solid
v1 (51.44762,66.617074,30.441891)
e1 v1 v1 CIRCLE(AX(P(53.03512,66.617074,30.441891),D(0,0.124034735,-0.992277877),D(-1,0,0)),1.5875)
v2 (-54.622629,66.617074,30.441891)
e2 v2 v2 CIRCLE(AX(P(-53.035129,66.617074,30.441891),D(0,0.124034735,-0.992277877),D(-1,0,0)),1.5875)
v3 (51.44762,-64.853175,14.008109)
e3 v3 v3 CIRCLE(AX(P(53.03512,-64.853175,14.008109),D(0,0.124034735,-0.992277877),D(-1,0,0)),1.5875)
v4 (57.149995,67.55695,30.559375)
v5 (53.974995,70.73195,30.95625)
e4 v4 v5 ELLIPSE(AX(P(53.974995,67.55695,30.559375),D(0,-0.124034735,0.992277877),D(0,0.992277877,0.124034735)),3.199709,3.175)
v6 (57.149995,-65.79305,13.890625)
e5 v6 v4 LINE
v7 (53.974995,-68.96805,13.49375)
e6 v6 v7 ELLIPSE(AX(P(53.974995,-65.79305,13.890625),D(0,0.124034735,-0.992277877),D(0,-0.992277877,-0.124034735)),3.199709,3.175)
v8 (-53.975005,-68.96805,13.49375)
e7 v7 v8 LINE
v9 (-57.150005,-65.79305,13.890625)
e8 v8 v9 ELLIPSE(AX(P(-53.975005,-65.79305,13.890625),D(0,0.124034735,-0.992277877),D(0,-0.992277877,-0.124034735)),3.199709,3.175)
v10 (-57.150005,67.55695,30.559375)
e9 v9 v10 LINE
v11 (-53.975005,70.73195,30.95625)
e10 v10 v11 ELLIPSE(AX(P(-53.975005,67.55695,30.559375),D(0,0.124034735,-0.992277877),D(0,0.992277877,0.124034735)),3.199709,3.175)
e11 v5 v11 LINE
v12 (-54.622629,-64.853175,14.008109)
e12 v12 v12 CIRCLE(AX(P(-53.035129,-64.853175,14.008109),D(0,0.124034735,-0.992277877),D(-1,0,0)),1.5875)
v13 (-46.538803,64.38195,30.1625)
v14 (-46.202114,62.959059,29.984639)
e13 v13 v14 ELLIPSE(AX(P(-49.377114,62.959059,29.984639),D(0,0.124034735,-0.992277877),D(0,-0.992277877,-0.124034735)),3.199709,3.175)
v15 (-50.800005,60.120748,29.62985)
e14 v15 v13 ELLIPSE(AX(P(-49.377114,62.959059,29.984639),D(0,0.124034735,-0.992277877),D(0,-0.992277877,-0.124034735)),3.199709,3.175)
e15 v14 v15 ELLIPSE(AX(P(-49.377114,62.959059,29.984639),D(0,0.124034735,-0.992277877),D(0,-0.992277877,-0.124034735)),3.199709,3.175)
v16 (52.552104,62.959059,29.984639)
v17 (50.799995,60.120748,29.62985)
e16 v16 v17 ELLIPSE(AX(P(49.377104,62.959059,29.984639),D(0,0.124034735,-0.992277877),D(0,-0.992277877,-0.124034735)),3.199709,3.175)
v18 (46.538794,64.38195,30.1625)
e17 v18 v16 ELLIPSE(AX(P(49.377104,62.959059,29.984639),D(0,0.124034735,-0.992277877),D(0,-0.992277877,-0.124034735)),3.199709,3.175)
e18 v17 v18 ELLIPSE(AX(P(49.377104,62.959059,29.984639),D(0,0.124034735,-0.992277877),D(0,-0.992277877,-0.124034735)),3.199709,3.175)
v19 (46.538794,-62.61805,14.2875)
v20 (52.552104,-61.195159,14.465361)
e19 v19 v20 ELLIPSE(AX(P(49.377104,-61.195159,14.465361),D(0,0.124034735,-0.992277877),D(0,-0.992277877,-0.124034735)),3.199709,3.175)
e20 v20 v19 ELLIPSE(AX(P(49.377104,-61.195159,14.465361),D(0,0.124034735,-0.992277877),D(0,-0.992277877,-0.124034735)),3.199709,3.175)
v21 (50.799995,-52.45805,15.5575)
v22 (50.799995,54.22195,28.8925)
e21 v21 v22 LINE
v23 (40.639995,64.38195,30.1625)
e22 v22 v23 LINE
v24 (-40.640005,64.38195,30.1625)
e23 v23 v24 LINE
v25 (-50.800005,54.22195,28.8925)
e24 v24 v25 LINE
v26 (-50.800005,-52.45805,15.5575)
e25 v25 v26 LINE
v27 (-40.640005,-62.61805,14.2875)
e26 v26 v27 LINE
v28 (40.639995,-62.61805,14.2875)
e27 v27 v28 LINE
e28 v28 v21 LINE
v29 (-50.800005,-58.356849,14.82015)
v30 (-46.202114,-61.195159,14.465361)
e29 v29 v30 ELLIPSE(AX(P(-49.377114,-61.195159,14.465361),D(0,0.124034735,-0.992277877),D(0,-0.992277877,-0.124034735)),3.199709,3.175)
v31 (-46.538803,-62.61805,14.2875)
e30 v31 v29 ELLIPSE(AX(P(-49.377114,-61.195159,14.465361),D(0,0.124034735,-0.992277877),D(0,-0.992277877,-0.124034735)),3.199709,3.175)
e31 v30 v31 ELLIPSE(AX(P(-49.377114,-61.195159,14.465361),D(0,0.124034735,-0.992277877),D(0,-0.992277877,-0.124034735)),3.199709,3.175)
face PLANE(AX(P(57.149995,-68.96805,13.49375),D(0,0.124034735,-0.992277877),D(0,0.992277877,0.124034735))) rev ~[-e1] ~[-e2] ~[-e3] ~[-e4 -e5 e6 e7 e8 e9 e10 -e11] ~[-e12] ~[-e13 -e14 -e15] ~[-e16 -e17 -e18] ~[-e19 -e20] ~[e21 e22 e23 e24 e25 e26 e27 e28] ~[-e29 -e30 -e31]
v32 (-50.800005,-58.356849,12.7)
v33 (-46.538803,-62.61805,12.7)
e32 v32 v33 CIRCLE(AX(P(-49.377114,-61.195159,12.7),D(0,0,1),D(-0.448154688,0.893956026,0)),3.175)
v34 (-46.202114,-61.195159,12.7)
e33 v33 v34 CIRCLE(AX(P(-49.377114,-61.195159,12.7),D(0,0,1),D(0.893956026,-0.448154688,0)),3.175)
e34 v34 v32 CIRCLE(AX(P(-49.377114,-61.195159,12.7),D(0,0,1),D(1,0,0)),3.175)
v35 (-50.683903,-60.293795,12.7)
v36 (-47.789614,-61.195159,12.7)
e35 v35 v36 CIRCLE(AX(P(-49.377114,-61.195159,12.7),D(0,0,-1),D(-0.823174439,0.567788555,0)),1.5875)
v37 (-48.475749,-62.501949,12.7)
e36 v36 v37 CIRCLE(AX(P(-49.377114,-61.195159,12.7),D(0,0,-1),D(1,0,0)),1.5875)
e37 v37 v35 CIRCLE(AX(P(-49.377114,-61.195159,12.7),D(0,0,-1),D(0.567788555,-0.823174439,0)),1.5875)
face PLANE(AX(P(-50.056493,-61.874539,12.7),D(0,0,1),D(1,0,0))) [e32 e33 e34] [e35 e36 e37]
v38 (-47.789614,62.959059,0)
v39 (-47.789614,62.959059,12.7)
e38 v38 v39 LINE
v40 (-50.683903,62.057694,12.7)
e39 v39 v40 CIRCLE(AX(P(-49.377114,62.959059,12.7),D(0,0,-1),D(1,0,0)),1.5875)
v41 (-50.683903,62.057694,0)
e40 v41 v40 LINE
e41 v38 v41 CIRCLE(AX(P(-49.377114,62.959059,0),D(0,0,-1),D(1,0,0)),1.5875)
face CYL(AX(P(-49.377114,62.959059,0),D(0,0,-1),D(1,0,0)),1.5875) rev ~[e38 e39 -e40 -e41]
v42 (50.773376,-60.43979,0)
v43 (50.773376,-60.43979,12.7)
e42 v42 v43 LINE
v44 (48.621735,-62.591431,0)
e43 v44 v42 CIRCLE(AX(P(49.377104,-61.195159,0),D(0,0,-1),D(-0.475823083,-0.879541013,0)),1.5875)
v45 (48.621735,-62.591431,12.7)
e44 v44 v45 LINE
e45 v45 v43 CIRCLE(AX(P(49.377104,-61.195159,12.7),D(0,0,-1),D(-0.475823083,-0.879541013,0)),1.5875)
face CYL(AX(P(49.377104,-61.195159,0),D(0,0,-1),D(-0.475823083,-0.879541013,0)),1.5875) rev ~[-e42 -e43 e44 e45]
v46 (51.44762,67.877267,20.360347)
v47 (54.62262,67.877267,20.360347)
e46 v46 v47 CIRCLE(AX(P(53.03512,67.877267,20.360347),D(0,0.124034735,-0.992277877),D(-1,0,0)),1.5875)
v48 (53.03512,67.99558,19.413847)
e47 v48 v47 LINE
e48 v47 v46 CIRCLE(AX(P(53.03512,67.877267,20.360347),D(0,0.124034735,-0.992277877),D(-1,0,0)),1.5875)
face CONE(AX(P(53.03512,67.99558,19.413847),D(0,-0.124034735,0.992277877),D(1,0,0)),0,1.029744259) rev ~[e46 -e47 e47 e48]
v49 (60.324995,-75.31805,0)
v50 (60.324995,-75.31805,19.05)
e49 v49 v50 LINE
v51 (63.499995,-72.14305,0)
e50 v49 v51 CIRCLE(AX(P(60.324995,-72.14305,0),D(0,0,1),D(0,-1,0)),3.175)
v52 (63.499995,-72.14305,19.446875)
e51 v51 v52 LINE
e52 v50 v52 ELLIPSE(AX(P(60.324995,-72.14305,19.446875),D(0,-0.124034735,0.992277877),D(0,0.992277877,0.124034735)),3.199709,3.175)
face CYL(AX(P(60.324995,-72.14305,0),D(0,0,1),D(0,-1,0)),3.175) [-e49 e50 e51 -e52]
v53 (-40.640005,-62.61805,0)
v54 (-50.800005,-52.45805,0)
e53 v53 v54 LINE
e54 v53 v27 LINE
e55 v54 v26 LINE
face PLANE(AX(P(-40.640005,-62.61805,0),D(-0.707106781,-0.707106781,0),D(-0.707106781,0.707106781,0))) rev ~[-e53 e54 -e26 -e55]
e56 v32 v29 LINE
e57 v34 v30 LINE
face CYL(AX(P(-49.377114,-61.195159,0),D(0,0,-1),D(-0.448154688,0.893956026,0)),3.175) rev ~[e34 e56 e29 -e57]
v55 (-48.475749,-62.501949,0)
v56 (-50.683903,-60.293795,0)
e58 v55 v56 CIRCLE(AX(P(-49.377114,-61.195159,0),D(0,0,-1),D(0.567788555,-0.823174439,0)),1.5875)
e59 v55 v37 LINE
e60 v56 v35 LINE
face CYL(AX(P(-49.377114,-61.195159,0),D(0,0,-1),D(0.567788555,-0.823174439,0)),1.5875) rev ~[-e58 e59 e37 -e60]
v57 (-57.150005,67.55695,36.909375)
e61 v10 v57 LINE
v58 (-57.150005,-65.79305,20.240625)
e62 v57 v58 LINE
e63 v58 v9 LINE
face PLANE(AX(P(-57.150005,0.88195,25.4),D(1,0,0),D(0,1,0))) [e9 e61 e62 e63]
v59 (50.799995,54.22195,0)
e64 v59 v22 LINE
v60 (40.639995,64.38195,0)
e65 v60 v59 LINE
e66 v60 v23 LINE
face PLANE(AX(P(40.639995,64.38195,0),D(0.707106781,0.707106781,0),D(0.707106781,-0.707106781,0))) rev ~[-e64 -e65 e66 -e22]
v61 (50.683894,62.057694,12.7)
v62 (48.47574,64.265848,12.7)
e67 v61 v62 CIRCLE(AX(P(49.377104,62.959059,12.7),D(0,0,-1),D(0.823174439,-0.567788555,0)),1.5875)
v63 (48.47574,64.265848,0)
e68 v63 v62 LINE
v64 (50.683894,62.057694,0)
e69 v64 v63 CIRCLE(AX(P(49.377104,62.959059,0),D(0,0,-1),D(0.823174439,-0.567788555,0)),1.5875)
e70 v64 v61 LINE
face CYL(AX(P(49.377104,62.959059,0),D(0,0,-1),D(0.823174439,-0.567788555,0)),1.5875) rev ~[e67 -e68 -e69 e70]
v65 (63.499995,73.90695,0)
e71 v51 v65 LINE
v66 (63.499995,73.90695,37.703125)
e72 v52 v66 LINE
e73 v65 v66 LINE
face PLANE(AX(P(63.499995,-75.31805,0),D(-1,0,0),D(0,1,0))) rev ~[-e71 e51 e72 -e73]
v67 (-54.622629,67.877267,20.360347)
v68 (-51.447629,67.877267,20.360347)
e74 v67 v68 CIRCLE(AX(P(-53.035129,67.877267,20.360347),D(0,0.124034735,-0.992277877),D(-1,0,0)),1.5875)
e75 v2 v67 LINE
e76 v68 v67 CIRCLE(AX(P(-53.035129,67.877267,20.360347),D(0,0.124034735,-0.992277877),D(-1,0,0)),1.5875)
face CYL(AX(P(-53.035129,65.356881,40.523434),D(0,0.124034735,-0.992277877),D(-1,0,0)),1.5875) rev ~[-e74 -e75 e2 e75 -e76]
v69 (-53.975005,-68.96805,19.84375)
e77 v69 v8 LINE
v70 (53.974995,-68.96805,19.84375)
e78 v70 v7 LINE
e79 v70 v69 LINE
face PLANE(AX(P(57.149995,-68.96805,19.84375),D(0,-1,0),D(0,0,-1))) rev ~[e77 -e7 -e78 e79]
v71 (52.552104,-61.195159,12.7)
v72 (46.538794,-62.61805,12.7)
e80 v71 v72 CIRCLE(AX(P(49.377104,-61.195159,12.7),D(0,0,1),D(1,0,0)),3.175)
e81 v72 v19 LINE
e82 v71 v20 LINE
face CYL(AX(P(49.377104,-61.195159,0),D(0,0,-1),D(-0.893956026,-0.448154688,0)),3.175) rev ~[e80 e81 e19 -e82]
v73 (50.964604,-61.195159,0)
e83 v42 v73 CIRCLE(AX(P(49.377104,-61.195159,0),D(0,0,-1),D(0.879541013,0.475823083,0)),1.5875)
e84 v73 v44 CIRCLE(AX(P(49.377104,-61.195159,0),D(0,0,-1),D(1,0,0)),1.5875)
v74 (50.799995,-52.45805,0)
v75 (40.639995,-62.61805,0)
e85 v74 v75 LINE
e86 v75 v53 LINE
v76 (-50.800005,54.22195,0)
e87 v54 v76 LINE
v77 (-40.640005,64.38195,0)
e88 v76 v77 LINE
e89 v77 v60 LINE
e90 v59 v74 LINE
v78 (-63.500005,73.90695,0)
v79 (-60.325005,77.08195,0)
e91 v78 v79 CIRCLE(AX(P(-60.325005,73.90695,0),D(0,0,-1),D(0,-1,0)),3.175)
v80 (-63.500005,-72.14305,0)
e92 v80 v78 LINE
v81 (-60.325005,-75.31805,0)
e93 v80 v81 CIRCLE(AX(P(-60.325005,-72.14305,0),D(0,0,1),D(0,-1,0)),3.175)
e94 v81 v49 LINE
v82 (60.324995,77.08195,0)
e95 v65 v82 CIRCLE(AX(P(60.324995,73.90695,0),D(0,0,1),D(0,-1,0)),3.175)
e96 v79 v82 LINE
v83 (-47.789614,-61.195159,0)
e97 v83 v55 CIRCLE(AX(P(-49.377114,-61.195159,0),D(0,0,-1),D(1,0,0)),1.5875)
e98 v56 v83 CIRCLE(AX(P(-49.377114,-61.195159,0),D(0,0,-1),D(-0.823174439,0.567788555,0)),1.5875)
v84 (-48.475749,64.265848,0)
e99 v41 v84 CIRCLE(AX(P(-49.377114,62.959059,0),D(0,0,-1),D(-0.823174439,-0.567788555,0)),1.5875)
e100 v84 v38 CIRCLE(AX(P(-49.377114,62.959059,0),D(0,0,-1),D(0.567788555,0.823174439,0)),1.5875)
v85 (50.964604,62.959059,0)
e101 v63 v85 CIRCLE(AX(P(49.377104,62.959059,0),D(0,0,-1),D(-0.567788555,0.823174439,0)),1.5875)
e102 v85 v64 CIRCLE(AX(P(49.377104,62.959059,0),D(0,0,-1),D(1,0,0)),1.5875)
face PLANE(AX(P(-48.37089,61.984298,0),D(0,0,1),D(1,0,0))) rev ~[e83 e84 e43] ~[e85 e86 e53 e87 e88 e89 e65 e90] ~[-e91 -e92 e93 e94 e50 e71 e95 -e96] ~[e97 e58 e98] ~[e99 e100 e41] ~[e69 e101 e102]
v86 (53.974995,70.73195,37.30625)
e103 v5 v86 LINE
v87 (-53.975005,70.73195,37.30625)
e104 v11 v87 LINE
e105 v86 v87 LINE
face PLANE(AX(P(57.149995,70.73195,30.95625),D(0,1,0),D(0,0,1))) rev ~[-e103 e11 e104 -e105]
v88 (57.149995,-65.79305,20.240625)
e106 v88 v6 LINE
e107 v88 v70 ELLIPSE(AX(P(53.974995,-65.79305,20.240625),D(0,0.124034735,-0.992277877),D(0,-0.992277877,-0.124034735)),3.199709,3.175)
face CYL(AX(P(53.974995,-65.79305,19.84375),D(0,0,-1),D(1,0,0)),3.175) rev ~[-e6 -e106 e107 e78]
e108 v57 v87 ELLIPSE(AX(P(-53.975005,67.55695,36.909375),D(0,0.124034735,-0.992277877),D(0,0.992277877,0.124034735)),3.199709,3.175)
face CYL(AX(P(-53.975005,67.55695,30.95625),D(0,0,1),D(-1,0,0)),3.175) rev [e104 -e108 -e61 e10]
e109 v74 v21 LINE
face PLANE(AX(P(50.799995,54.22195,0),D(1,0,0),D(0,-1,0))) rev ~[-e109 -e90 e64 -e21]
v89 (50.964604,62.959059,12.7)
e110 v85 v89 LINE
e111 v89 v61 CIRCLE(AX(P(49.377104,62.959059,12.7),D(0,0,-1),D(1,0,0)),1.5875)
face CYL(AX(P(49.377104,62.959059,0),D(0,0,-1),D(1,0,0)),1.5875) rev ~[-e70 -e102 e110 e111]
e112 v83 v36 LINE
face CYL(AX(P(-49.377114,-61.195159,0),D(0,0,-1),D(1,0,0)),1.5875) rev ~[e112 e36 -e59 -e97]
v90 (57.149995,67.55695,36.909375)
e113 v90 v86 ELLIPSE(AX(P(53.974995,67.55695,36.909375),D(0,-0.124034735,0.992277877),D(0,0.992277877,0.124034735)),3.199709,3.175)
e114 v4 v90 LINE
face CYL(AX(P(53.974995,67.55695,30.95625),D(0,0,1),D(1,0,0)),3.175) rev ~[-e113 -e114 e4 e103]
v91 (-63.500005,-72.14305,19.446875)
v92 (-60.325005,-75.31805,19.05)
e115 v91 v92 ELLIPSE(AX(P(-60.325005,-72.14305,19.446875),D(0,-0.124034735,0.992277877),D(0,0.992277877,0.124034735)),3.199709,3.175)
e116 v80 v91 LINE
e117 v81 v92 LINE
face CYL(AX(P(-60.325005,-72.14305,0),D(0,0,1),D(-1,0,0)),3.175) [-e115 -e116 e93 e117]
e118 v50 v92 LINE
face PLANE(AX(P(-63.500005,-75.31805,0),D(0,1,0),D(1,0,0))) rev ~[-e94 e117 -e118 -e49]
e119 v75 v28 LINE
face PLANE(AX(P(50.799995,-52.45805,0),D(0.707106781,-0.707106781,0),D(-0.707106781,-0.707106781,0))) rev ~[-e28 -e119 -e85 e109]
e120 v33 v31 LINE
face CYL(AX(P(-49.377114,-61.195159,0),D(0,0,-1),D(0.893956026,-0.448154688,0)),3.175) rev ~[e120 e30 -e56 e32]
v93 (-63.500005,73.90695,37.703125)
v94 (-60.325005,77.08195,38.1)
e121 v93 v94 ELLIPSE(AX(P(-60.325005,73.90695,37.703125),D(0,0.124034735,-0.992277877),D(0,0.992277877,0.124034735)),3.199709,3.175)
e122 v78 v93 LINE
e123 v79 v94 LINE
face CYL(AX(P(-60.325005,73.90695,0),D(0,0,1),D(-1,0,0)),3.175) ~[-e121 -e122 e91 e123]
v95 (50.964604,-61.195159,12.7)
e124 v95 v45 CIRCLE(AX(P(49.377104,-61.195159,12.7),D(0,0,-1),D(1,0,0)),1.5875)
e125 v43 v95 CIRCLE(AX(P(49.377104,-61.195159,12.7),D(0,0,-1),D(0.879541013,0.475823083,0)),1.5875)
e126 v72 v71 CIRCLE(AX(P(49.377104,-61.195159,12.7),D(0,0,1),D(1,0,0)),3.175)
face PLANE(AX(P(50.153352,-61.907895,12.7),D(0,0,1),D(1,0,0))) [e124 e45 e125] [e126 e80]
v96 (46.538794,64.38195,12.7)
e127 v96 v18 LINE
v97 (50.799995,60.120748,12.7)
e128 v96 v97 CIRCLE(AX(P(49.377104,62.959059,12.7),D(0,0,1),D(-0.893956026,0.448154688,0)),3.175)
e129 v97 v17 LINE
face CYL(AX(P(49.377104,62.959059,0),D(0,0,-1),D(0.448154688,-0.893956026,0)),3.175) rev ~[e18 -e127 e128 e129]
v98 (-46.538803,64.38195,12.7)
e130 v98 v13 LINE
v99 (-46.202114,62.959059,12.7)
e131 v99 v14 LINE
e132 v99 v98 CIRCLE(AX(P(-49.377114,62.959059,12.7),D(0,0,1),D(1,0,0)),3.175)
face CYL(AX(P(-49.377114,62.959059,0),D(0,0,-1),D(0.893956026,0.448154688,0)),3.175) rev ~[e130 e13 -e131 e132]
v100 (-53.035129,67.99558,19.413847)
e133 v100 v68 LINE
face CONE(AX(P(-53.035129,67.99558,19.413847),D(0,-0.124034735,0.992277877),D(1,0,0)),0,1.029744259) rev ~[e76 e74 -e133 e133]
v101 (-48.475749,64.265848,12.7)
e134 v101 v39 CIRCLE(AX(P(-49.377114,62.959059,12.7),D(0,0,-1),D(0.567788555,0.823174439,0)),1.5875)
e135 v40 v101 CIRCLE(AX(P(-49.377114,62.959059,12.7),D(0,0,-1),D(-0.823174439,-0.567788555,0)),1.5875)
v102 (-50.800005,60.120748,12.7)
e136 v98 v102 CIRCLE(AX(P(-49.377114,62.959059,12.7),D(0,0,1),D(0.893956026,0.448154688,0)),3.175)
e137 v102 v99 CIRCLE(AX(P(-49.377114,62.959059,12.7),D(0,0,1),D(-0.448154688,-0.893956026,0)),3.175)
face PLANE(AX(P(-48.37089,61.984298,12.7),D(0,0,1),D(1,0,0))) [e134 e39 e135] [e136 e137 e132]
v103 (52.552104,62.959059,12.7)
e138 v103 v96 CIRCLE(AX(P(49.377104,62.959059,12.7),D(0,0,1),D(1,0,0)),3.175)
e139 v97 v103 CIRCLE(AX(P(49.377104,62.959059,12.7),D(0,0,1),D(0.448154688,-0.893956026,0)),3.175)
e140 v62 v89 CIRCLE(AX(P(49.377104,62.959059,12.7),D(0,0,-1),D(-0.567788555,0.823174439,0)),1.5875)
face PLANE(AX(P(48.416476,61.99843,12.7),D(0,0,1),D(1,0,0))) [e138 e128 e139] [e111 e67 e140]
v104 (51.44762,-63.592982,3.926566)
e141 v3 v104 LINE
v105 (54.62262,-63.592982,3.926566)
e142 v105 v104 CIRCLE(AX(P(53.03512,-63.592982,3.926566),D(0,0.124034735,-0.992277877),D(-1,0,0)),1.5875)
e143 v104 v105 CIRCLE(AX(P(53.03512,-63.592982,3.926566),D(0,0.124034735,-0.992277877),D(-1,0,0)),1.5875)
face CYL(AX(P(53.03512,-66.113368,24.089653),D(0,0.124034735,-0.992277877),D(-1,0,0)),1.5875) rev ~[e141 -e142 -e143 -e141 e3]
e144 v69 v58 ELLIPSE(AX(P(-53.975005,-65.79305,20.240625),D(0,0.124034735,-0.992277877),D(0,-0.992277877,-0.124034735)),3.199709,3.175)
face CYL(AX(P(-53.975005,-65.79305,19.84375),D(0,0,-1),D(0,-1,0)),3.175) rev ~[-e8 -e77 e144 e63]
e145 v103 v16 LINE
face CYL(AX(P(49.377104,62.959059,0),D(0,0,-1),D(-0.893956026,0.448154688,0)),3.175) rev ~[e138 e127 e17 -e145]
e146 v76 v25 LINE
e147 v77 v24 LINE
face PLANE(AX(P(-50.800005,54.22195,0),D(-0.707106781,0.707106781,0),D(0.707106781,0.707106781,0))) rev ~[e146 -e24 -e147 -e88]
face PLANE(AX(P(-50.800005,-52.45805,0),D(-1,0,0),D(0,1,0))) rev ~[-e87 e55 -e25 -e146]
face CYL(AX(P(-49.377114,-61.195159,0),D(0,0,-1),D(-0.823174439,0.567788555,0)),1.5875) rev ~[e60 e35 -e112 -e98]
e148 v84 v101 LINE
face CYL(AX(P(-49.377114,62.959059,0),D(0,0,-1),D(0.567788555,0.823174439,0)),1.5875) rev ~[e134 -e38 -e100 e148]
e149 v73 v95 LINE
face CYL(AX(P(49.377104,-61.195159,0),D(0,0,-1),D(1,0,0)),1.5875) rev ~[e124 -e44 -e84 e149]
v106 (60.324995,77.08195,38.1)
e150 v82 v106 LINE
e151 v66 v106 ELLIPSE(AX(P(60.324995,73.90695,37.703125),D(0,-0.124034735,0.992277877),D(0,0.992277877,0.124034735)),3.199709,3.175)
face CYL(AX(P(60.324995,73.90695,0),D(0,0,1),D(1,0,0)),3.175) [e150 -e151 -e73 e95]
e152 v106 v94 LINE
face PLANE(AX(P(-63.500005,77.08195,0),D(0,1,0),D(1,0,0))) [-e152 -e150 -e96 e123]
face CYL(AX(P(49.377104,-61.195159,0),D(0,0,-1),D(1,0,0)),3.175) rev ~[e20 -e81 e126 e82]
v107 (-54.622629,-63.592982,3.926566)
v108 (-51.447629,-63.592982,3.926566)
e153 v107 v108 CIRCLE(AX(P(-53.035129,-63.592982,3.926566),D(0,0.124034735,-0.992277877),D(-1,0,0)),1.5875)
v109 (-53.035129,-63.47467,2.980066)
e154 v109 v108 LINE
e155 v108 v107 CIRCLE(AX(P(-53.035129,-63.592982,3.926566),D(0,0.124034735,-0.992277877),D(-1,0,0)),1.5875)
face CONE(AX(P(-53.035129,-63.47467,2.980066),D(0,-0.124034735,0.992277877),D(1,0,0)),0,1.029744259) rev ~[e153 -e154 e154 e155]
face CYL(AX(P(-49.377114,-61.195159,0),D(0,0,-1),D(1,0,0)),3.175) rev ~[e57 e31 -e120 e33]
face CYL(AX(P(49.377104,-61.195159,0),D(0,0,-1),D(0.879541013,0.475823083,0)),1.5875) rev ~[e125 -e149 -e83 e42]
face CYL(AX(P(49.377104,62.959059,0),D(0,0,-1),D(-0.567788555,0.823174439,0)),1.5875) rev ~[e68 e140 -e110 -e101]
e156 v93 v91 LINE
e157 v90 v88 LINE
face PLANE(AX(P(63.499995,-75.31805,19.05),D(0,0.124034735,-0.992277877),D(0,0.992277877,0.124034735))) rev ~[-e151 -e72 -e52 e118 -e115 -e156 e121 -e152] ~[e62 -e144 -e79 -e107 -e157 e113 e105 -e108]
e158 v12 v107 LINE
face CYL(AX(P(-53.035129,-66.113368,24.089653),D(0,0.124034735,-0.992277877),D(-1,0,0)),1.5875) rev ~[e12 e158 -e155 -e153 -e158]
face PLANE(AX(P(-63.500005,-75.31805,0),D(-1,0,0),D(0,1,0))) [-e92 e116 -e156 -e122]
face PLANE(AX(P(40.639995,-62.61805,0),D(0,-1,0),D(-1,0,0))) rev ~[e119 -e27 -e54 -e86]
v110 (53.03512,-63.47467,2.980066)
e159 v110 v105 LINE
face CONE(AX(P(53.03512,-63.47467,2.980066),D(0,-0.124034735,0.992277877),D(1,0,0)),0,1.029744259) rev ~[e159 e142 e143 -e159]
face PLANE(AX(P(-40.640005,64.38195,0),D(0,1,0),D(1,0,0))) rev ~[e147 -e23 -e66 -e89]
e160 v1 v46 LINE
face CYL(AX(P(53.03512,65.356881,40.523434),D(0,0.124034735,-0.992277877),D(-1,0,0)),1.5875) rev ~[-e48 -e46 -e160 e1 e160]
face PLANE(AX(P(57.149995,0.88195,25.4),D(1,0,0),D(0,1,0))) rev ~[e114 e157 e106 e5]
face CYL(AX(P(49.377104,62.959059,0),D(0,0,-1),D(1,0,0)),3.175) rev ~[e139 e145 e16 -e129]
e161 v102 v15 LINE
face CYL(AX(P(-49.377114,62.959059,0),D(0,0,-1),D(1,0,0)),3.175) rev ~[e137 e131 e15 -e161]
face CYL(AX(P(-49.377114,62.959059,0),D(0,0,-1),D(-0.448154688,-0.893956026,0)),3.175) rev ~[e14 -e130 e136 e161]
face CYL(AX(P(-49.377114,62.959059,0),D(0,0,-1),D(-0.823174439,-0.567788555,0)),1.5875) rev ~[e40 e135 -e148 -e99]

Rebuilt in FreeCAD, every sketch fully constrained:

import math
import FreeCAD as App
import Part
import Sketcher

V = App.Vector
Q = App.Units.Quantity


def edges_at(feature, points):
    """Names of the edges that pass closest to the given points."""
    edges = feature.Shape.Edges
    near = lambda p: min(range(len(edges)), key=lambda i: edges[i].distToShape(Part.Vertex(*p))[0])
    return sorted({f"Edge{near(p) + 1}" for p in points})

doc = App.newDocument("Part")
body = doc.addObject("PartDesign::Body", "Body")

# Sketch on XY plane
sketch1 = body.newObject("Sketcher::SketchObject", "Sketch")
sketch1.AttachmentSupport = (doc.getObject("XY_Plane"), [""])
sketch1.MapMode = "FlatFace"
sketch1.addGeometry([
    Part.LineSegment(V(-63.5, 77.1, 0), V(-63.5, -75.3, 0)),  # 0
    Part.LineSegment(V(-63.5, -75.3, 0), V(63.5, -75.3, 0)),  # 1
    Part.LineSegment(V(63.5, -75.3, 0), V(63.5, 77.1, 0)),  # 2
    Part.LineSegment(V(63.5, 77.1, 0), V(-63.5, 77.1, 0)),  # 3
    Part.ArcOfCircle(Part.Circle(V(-49.4, 63, 0), V(0, 0, 1), 3.2), math.radians(27), math.radians(243)),  # 4
    Part.ArcOfCircle(Part.Circle(V(-49.4, 63, 0), V(0, 0, 1), 3.2), math.radians(0), math.radians(27)),  # 5
    Part.ArcOfCircle(Part.Circle(V(-49.4, 63, 0), V(0, 0, 1), 3.2), math.radians(-117), math.radians(0)),  # 6
    Part.LineSegment(V(-50.8, -52.5, 0), V(-50.8, 54.2, 0)),  # 7
    Part.LineSegment(V(-50.8, 54.2, 0), V(-40.6, 64.4, 0)),  # 8
    Part.LineSegment(V(-40.6, 64.4, 0), V(40.6, 64.4, 0)),  # 9
    Part.LineSegment(V(40.6, 64.4, 0), V(50.8, 54.2, 0)),  # 10
    Part.LineSegment(V(50.8, 54.2, 0), V(50.8, -52.5, 0)),  # 11
    Part.LineSegment(V(50.8, -52.5, 0), V(40.6, -62.6, 0)),  # 12
    Part.LineSegment(V(40.6, -62.6, 0), V(-40.6, -62.6, 0)),  # 13
    Part.LineSegment(V(-40.6, -62.6, 0), V(-50.8, -52.5, 0)),  # 14
    Part.ArcOfCircle(Part.Circle(V(-49.4, -61.2, 0), V(0, 0, 1), 3.2), math.radians(117), math.radians(333)),  # 15
    Part.ArcOfCircle(Part.Circle(V(-49.4, -61.2, 0), V(0, 0, 1), 3.2), math.radians(0), math.radians(117)),  # 16
    Part.ArcOfCircle(Part.Circle(V(-49.4, -61.2, 0), V(0, 0, 1), 3.2), math.radians(-27), math.radians(0)),  # 17
    Part.ArcOfCircle(Part.Circle(V(49.4, -61.2, 0), V(0, 0, 1), 3.2), math.radians(-153), math.radians(0)),  # 18
    Part.ArcOfCircle(Part.Circle(V(49.4, -61.2, 0), V(0, 0, 1), 3.2), math.radians(0), math.radians(207)),  # 19
    Part.ArcOfCircle(Part.Circle(V(49.4, 63, 0), V(0, 0, 1), 3.2), math.radians(0), math.radians(153)),  # 20
    Part.ArcOfCircle(Part.Circle(V(49.4, 63, 0), V(0, 0, 1), 3.2), math.radians(-63), math.radians(0)),  # 21
    Part.ArcOfCircle(Part.Circle(V(49.4, 63, 0), V(0, 0, 1), 3.2), math.radians(153), math.radians(297)),  # 22
], False)
sketch1.addConstraint([
    Sketcher.Constraint("Coincident", 0, 2, 1, 1),
    Sketcher.Constraint("Coincident", 1, 2, 2, 1),
    Sketcher.Constraint("Coincident", 2, 2, 3, 1),
    Sketcher.Constraint("Coincident", 3, 2, 0, 1),
    Sketcher.Constraint("Tangent", 4, 1, 5, 2),
    Sketcher.Constraint("Tangent", 5, 1, 6, 2),
    Sketcher.Constraint("Tangent", 6, 1, 4, 2),
    Sketcher.Constraint("Coincident", 7, 2, 8, 1),
    Sketcher.Constraint("Coincident", 8, 2, 9, 1),
    Sketcher.Constraint("Coincident", 9, 2, 10, 1),
    Sketcher.Constraint("Coincident", 10, 2, 11, 1),
    Sketcher.Constraint("Coincident", 11, 2, 12, 1),
    Sketcher.Constraint("Coincident", 12, 2, 13, 1),
    Sketcher.Constraint("Coincident", 13, 2, 14, 1),
    Sketcher.Constraint("Coincident", 14, 2, 7, 1),
    Sketcher.Constraint("Tangent", 15, 1, 16, 2),
    Sketcher.Constraint("Tangent", 16, 1, 17, 2),
    Sketcher.Constraint("Tangent", 17, 1, 15, 2),
    Sketcher.Constraint("Tangent", 18, 1, 19, 2),
    Sketcher.Constraint("Coincident", 19, 1, 18, 2),
    Sketcher.Constraint("Tangent", 20, 1, 21, 2),
    Sketcher.Constraint("Tangent", 21, 1, 22, 2),
    Sketcher.Constraint("Tangent", 22, 1, 20, 2),
    Sketcher.Constraint("Vertical", 0),
    Sketcher.Constraint("Horizontal", 1),
    Sketcher.Constraint("Vertical", 2),
    Sketcher.Constraint("Horizontal", 3),
    Sketcher.Constraint("Vertical", 7),
    Sketcher.Constraint("Horizontal", 9),
    Sketcher.Constraint("Vertical", 11),
    Sketcher.Constraint("Horizontal", 13),
    Sketcher.Constraint("Equal", 6, 15),
    Sketcher.Constraint("Equal", 17, 18),
    Sketcher.Constraint("Equal", 19, 20),
    Sketcher.Constraint("Symmetric", 15, 3, 18, 3, -2),
    Sketcher.Constraint("Symmetric", 4, 3, 20, 3, -2),
    Sketcher.Constraint("Symmetric", 7, 2, 10, 2, -2),
    Sketcher.Constraint("Perpendicular", 8, 10),
    Sketcher.Constraint("Perpendicular", 10, 12),
    Sketcher.Constraint("Perpendicular", 12, 14),
    Sketcher.Constraint("Horizontal", 22, 3, 5, 1),
    Sketcher.Constraint("Horizontal", 4, 1, 8, 2),
    Sketcher.Constraint("Horizontal", 11, 2, 14, 2),
    Sketcher.Constraint("Horizontal", 19, 3, 16, 1),
    Sketcher.Constraint("Horizontal", 13, 2, 17, 1),
    Sketcher.Constraint("Horizontal", 17, 1, 18, 1),
    Sketcher.Constraint("Horizontal", 16, 1, 19, 1),
    Sketcher.Constraint("Horizontal", 5, 1, 20, 1),
    Sketcher.Constraint("Horizontal", 6, 1, 21, 1),
    Sketcher.Constraint("Horizontal", 9, 2, 22, 1),
    Sketcher.Constraint("Vertical", 6, 3, 15, 3),
    Sketcher.Constraint("Vertical", 6, 1, 7, 2),
    Sketcher.Constraint("Vertical", 9, 2, 12, 2),
    Sketcher.Constraint("Vertical", 8, 2, 13, 2),
    Sketcher.Constraint("Vertical", 14, 2, 15, 1),
    Sketcher.Constraint("Vertical", 4, 1, 17, 1),
    Sketcher.Constraint("DistanceX", 1, 1, 1, 2, Q("5 in")),
    Sketcher.Constraint("DistanceY", 0, 2, 0, 1, Q("6 in")),
    Sketcher.Constraint("DistanceX", 9, 1, 9, 2, Q("3.2 in")),
    Sketcher.Constraint("DistanceY", 7, 1, 7, 2, Q("4.2 in")),
    Sketcher.Constraint("DistanceX", 6, 1, -1, 1, Q("2.0000002 in")),
    Sketcher.Constraint("Radius", 4, Q("0.125 in")),
    Sketcher.Constraint("DistanceX", 0, 2, -1, 1, Q("2.5000002 in")),
    Sketcher.Constraint("DistanceY", 4, 1, 3, 2, Q("0.5 in")),
    Sketcher.Constraint("DistanceX", 3, 2, 4, 1, Q("16.961202 mm")),
    Sketcher.Constraint("DistanceY", 6, 1, 4, 1, Q("4.261202 mm")),
    Sketcher.Constraint("DistanceY", -1, 1, 4, 3, Q("62.959059 mm")),
])
pad1 = body.newObject("PartDesign::Pad", "Pad")
pad1.Profile = sketch1
pad1.Length = Q("3 in")

# Sketch on YZ plane
sketch2 = body.newObject("Sketcher::SketchObject", "Sketch001")
sketch2.AttachmentSupport = (doc.getObject("YZ_Plane"), [""])
sketch2.MapMode = "FlatFace"
sketch2.AttachmentOffset = App.Placement(V(0, 0, 2.4999998 * 25.4), App.Rotation())
sketch2.addGeometry([
    Part.LineSegment(V(77, 38, 0), V(77, 83, 0)),
    Part.LineSegment(V(77, 83, 0), V(-75, 83, 0)),
    Part.LineSegment(V(-75, 83, 0), V(-75, 19, 0)),
    Part.LineSegment(V(-75, 19, 0), V(77, 38, 0)),
], False)
sketch2.addConstraint([
    Sketcher.Constraint("Coincident", 0, 2, 1, 1),
    Sketcher.Constraint("Coincident", 1, 2, 2, 1),
    Sketcher.Constraint("Coincident", 2, 2, 3, 1),
    Sketcher.Constraint("Coincident", 3, 2, 0, 1),
    Sketcher.Constraint("Horizontal", 1),
    Sketcher.Constraint("DistanceX", 2, 2, 3, 2, Q("6 in")),
    Sketcher.Constraint("DistanceY", -1, 1, 3, 2, Q("1.5 in")),
    Sketcher.Constraint("DistanceY", -1, 1, 2, 2, Q("0.75 in")),
    Sketcher.Constraint("DistanceX", 2, 2, 0, 2, Q("152.493399 mm")),
    Sketcher.Constraint("Distance", 0, Q("44.863542 mm")),
    Sketcher.Constraint("DistanceX", 1, 2, 1, 1, Q("152.558908 mm")),
    Sketcher.Constraint("DistanceX", -1, 1, 0, 2, Q("77.175349 mm")),
])
pocket1 = body.newObject("PartDesign::Pocket", "Pocket")
pocket1.Profile = sketch2
pocket1.Length = Q("5.27 in")

# Sketch on XY plane
sketch3 = body.newObject("Sketcher::SketchObject", "Sketch002")
sketch3.AttachmentSupport = (doc.getObject("XY_Plane"), [""])
sketch3.MapMode = "FlatFace"
sketch3.addGeometry([
    Part.ArcOfCircle(Part.Circle(V(-49.4, 63, 0), V(0, 0, 1), 3.2), math.radians(0), math.radians(27)),  # 0
    Part.ArcOfCircle(Part.Circle(V(-49.4, 63, 0), V(0, 0, 1), 3.2), math.radians(27), math.radians(243)),  # 1
    Part.ArcOfCircle(Part.Circle(V(-49.4, 63, 0), V(0, 0, 1), 3.2), math.radians(-117), math.radians(0)),  # 2
    Part.ArcOfCircle(Part.Circle(V(-49.4, 63, 0), V(0, 0, 1), 1.6), math.radians(0), math.radians(55)),  # 3
    Part.ArcOfCircle(Part.Circle(V(-49.4, 63, 0), V(0, 0, 1), 1.6), math.radians(-145), math.radians(0)),  # 4
    Part.ArcOfCircle(Part.Circle(V(-49.4, 63, 0), V(0, 0, 1), 1.6), math.radians(55), math.radians(215)),  # 5
    Part.ArcOfCircle(Part.Circle(V(49.4, 63, 0), V(0, 0, 1), 3.2), math.radians(153), math.radians(297)),  # 6
    Part.ArcOfCircle(Part.Circle(V(49.4, 63, 0), V(0, 0, 1), 3.2), math.radians(-63), math.radians(0)),  # 7
    Part.ArcOfCircle(Part.Circle(V(49.4, 63, 0), V(0, 0, 1), 3.2), math.radians(0), math.radians(153)),  # 8
    Part.ArcOfCircle(Part.Circle(V(49.4, 63, 0), V(0, 0, 1), 1.6), math.radians(125), math.radians(325)),  # 9
    Part.ArcOfCircle(Part.Circle(V(49.4, 63, 0), V(0, 0, 1), 1.6), math.radians(0), math.radians(125)),  # 10
    Part.ArcOfCircle(Part.Circle(V(49.4, 63, 0), V(0, 0, 1), 1.6), math.radians(-35), math.radians(0)),  # 11
    Part.Circle(V(49.4, -61.2, 0), V(0, 0, 1), 3.2),  # 12
    Part.ArcOfCircle(Part.Circle(V(49.4, -61.2, 0), V(0, 0, 1), 1.6), math.radians(0), math.radians(28)),  # 13
    Part.ArcOfCircle(Part.Circle(V(49.4, -61.2, 0), V(0, 0, 1), 1.6), math.radians(-118), math.radians(0)),  # 14
    Part.ArcOfCircle(Part.Circle(V(49.4, -61.2, 0), V(0, 0, 1), 1.6), math.radians(28), math.radians(242)),  # 15
    Part.ArcOfCircle(Part.Circle(V(-49.4, -61.2, 0), V(0, 0, 1), 3.2), math.radians(117), math.radians(333)),  # 16
    Part.ArcOfCircle(Part.Circle(V(-49.4, -61.2, 0), V(0, 0, 1), 3.2), math.radians(-27), math.radians(0)),  # 17
    Part.ArcOfCircle(Part.Circle(V(-49.4, -61.2, 0), V(0, 0, 1), 3.2), math.radians(0), math.radians(117)),  # 18
    Part.ArcOfCircle(Part.Circle(V(-49.4, -61.2, 0), V(0, 0, 1), 1.6), math.radians(145), math.radians(305)),  # 19
    Part.ArcOfCircle(Part.Circle(V(-49.4, -61.2, 0), V(0, 0, 1), 1.6), math.radians(0), math.radians(145)),  # 20
    Part.ArcOfCircle(Part.Circle(V(-49.4, -61.2, 0), V(0, 0, 1), 1.6), math.radians(-55), math.radians(0)),  # 21
], False)
sketch3.addConstraint([
    Sketcher.Constraint("Tangent", 0, 2, 1, 1),
    Sketcher.Constraint("Tangent", 1, 2, 2, 1),
    Sketcher.Constraint("Tangent", 2, 2, 0, 1),
    Sketcher.Constraint("Tangent", 3, 1, 4, 2),
    Sketcher.Constraint("Tangent", 4, 1, 5, 2),
    Sketcher.Constraint("Tangent", 5, 1, 3, 2),
    Sketcher.Constraint("Tangent", 6, 2, 7, 1),
    Sketcher.Constraint("Tangent", 7, 2, 8, 1),
    Sketcher.Constraint("Tangent", 8, 2, 6, 1),
    Sketcher.Constraint("Tangent", 9, 1, 10, 2),
    Sketcher.Constraint("Tangent", 10, 1, 11, 2),
    Sketcher.Constraint("Tangent", 11, 1, 9, 2),
    Sketcher.Constraint("Tangent", 13, 1, 14, 2),
    Sketcher.Constraint("Tangent", 14, 1, 15, 2),
    Sketcher.Constraint("Tangent", 15, 1, 13, 2),
    Sketcher.Constraint("Tangent", 16, 2, 17, 1),
    Sketcher.Constraint("Tangent", 17, 2, 18, 1),
    Sketcher.Constraint("Tangent", 18, 2, 16, 1),
    Sketcher.Constraint("Tangent", 19, 1, 20, 2),
    Sketcher.Constraint("Tangent", 20, 1, 21, 2),
    Sketcher.Constraint("Tangent", 21, 1, 19, 2),
    Sketcher.Constraint("Coincident", 3, 3, 0, 3),
    Sketcher.Constraint("Coincident", 9, 3, 6, 3),
    Sketcher.Constraint("Coincident", 13, 3, 12, 3),
    Sketcher.Constraint("Coincident", 19, 3, 16, 3),
    Sketcher.Constraint("Equal", 2, 6),
    Sketcher.Constraint("Equal", 5, 9),
    Sketcher.Constraint("Equal", 8, 12),
    Sketcher.Constraint("Equal", 11, 13),
    Sketcher.Constraint("Equal", 12, 16),
    Sketcher.Constraint("Equal", 15, 19),
    Sketcher.Constraint("Symmetric", 0, 3, 6, 3, -2),
    Sketcher.Constraint("Symmetric", 12, 3, 16, 3, -2),
    Sketcher.Constraint("Horizontal", 11, 3, 2, 2),
    Sketcher.Constraint("Horizontal", 2, 2, 3, 1),
    Sketcher.Constraint("Horizontal", 1, 2, 6, 2),
    Sketcher.Constraint("Horizontal", 3, 1, 7, 2),
    Sketcher.Constraint("Horizontal", 0, 2, 8, 2),
    Sketcher.Constraint("Horizontal", 5, 1, 9, 1),
    Sketcher.Constraint("Horizontal", 7, 2, 10, 1),
    Sketcher.Constraint("Horizontal", 4, 1, 11, 1),
    Sketcher.Constraint("Horizontal", 21, 3, 13, 1),
    Sketcher.Constraint("Horizontal", 13, 1, 17, 2),
    Sketcher.Constraint("Horizontal", 17, 2, 20, 1),
    Sketcher.Constraint("Vertical", 11, 3, 12, 3),
    Sketcher.Constraint("Vertical", 0, 2, 16, 2),
    Sketcher.Constraint("Vertical", 1, 2, 18, 2),
    Sketcher.Constraint("Vertical", 4, 1, 19, 1),
    Sketcher.Constraint("Vertical", 5, 1, 21, 1),
    Sketcher.Constraint("Diameter", 12, Q("0.25 in")),
    Sketcher.Constraint("DistanceX", 1, 2, -1, 1, Q("2.0000002 in")),
    Sketcher.Constraint("Radius", 3, Q("0.0625 in")),
    Sketcher.Constraint("DistanceY", -1, 1, 0, 3, Q("62.959059 mm")),
    Sketcher.Constraint("DistanceY", 12, 3, -1, 1, Q("61.195159 mm")),
    Sketcher.Constraint("DistanceY", -1, 1, 0, 2, Q("64.38195 mm")),
    Sketcher.Constraint("DistanceY", -1, 1, 1, 2, Q("60.120748 mm")),
    Sketcher.Constraint("DistanceX", 5, 1, -1, 1, Q("48.475749 mm")),
    Sketcher.Constraint("DistanceY", 14, 1, -1, 1, Q("62.591431 mm")),
    Sketcher.Constraint("DistanceY", 15, 1, -1, 1, Q("60.43979 mm")),
    Sketcher.Constraint("DistanceX", 4, 1, 3, 3, Q("1.306789 mm")),
])
pad2 = body.newObject("PartDesign::Pad", "Pad001")
pad2.Profile = sketch3
pad2.Length = Q("0.5 in")

# Sketch on YZ plane
sketch4 = body.newObject("Sketcher::SketchObject", "Sketch003")
sketch4.AttachmentSupport = (doc.getObject("YZ_Plane"), [""])
sketch4.MapMode = "FlatFace"
sketch4.AttachmentOffset = App.Placement(V(0, 0, 2.2499998 * 25.4), App.Rotation())
sketch4.addGeometry([
    Part.LineSegment(V(71, 37, 0), V(-69, 20, 0)),
    Part.LineSegment(V(-69, 20, 0), V(-69, 13, 0)),
    Part.LineSegment(V(-69, 13, 0), V(71, 31, 0)),
    Part.LineSegment(V(71, 31, 0), V(71, 37, 0)),
], False)
sketch4.addConstraint([
    Sketcher.Constraint("Coincident", 0, 2, 1, 1),
    Sketcher.Constraint("Coincident", 1, 2, 2, 1),
    Sketcher.Constraint("Coincident", 2, 2, 3, 1),
    Sketcher.Constraint("Coincident", 3, 2, 0, 1),
    Sketcher.Constraint("Vertical", 1),
    Sketcher.Constraint("Vertical", 3),
    Sketcher.Constraint("Parallel", 0, 2),
    Sketcher.Constraint("DistanceY", 1, 2, 1, 1, Q("0.25 in")),
    Sketcher.Constraint("DistanceX", 0, 2, 2, 2, Q("5.5 in")),
    Sketcher.Constraint("DistanceY", -1, 1, 0, 2, Q("0.78125 in")),
    Sketcher.Constraint("DistanceY", -1, 1, 2, 2, Q("1.21875 in")),
    Sketcher.Constraint("DistanceX", 0, 2, -1, 1, Q("68.96805 mm")),
])
pocket2 = body.newObject("PartDesign::Pocket", "Pocket001")
pocket2.Profile = sketch4
pocket2.Length = Q("4.5 in")

# Sketch on an angled plane
sketch5 = body.newObject("Sketcher::SketchObject", "Sketch004")
sketch5.Placement = App.Placement(V(0, -2.721816, 21.774529), App.Rotation(V(1, 0, 0), V(0, 0.992277877, 0.124034735), V(0, -0.124034735, 0.992277877), "ZXY"))
sketch5.addGeometry([
    Part.Circle(V(-53, 69.9, 0), V(0, 0, 1), 1.6),
    Part.Circle(V(53, 69.9, 0), V(0, 0, 1), 1.6),
    Part.Circle(V(53, -62.6, 0), V(0, 0, 1), 1.6),
    Part.Circle(V(-53, -62.6, 0), V(0, 0, 1), 1.6),
], False)
sketch5.addConstraint([
    Sketcher.Constraint("Equal", 0, 1),
    Sketcher.Constraint("Equal", 1, 2),
    Sketcher.Constraint("Equal", 2, 3),
    Sketcher.Constraint("Symmetric", 0, 3, 1, 3, -2),
    Sketcher.Constraint("Symmetric", 2, 3, 3, 3, -2),
    Sketcher.Constraint("Vertical", 1, 3, 2, 3),
    Sketcher.Constraint("Diameter", 0, Q("0.125 in")),
    Sketcher.Constraint("DistanceY", -1, 1, 0, 3, Q("69.878501 mm")),
    Sketcher.Constraint("DistanceX", 0, 3, -1, 1, Q("53.035129 mm")),
    Sketcher.Constraint("DistanceY", 2, 3, -1, 1, Q("62.614879 mm")),
])
doc.recompute()
hole = body.newObject("PartDesign::Hole", "Hole")
hole.Profile = sketch5
hole.ThreadType = "None"
hole.Diameter = Q("0.125 in")
hole.DepthType = "Dimension"
hole.Depth = Q("0.4 in")
hole.DrillPoint = "Angled"
hole.DrillPointAngle = 118
doc.recompute()

fillet = body.newObject("PartDesign::Fillet", "Fillet")
fillet.Base = (hole, edges_at(hole, [
    (63.5, 77.082, 19.05),
    (-63.5, 77.082, 19.05),
    (63.5, -75.318, 9.525),
    (-63.5, -75.318, 9.525),
    (-57.15, 70.732, 34.131),
    (57.15, 70.732, 34.131),
    (-57.15, -68.968, 16.669),
    (57.15, -68.968, 16.669),
]))
fillet.Radius = Q("0.125 in")

doc.recompute()
